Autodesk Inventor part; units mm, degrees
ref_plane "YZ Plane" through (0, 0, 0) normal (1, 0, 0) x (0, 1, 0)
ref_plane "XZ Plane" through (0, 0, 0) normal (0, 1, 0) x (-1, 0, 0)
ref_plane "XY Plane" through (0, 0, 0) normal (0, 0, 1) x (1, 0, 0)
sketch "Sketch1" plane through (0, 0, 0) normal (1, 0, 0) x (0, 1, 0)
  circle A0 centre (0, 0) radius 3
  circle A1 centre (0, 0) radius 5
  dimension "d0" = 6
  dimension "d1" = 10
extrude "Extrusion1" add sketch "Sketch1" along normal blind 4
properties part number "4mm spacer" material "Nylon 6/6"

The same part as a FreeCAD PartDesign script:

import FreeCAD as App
import Part
import Sketcher
from FreeCAD import Vector
Q = App.Units.Quantity

doc = App.newDocument("Part")
body = doc.addObject("PartDesign::Body", "Body")

sketch1 = body.newObject("Sketcher::SketchObject", "Sketch")
sketch1.AttachmentSupport = (doc.getObject("YZ_Plane"), [""])
sketch1.MapMode = "FlatFace"
sketch1.addGeometry(Part.Circle(Vector(0, 0, 0), Vector(0, 0, 1), 5), False)
sketch1.addGeometry(Part.Circle(Vector(0, 0, 0), Vector(0, 0, 1), 3), False)
sketch1.addConstraint(Sketcher.Constraint("Coincident", 0, 3, -1, 1))
sketch1.addConstraint(Sketcher.Constraint("Coincident", 1, 3, -1, 1))
sketch1.addConstraint(Sketcher.Constraint("Diameter", 0, Q("10 mm")))
sketch1.addConstraint(Sketcher.Constraint("Diameter", 1, Q("6 mm")))
pad1 = body.newObject("PartDesign::Pad", "Pad")
pad1.Profile = sketch1
pad1.Length = 4

doc.recompute()
